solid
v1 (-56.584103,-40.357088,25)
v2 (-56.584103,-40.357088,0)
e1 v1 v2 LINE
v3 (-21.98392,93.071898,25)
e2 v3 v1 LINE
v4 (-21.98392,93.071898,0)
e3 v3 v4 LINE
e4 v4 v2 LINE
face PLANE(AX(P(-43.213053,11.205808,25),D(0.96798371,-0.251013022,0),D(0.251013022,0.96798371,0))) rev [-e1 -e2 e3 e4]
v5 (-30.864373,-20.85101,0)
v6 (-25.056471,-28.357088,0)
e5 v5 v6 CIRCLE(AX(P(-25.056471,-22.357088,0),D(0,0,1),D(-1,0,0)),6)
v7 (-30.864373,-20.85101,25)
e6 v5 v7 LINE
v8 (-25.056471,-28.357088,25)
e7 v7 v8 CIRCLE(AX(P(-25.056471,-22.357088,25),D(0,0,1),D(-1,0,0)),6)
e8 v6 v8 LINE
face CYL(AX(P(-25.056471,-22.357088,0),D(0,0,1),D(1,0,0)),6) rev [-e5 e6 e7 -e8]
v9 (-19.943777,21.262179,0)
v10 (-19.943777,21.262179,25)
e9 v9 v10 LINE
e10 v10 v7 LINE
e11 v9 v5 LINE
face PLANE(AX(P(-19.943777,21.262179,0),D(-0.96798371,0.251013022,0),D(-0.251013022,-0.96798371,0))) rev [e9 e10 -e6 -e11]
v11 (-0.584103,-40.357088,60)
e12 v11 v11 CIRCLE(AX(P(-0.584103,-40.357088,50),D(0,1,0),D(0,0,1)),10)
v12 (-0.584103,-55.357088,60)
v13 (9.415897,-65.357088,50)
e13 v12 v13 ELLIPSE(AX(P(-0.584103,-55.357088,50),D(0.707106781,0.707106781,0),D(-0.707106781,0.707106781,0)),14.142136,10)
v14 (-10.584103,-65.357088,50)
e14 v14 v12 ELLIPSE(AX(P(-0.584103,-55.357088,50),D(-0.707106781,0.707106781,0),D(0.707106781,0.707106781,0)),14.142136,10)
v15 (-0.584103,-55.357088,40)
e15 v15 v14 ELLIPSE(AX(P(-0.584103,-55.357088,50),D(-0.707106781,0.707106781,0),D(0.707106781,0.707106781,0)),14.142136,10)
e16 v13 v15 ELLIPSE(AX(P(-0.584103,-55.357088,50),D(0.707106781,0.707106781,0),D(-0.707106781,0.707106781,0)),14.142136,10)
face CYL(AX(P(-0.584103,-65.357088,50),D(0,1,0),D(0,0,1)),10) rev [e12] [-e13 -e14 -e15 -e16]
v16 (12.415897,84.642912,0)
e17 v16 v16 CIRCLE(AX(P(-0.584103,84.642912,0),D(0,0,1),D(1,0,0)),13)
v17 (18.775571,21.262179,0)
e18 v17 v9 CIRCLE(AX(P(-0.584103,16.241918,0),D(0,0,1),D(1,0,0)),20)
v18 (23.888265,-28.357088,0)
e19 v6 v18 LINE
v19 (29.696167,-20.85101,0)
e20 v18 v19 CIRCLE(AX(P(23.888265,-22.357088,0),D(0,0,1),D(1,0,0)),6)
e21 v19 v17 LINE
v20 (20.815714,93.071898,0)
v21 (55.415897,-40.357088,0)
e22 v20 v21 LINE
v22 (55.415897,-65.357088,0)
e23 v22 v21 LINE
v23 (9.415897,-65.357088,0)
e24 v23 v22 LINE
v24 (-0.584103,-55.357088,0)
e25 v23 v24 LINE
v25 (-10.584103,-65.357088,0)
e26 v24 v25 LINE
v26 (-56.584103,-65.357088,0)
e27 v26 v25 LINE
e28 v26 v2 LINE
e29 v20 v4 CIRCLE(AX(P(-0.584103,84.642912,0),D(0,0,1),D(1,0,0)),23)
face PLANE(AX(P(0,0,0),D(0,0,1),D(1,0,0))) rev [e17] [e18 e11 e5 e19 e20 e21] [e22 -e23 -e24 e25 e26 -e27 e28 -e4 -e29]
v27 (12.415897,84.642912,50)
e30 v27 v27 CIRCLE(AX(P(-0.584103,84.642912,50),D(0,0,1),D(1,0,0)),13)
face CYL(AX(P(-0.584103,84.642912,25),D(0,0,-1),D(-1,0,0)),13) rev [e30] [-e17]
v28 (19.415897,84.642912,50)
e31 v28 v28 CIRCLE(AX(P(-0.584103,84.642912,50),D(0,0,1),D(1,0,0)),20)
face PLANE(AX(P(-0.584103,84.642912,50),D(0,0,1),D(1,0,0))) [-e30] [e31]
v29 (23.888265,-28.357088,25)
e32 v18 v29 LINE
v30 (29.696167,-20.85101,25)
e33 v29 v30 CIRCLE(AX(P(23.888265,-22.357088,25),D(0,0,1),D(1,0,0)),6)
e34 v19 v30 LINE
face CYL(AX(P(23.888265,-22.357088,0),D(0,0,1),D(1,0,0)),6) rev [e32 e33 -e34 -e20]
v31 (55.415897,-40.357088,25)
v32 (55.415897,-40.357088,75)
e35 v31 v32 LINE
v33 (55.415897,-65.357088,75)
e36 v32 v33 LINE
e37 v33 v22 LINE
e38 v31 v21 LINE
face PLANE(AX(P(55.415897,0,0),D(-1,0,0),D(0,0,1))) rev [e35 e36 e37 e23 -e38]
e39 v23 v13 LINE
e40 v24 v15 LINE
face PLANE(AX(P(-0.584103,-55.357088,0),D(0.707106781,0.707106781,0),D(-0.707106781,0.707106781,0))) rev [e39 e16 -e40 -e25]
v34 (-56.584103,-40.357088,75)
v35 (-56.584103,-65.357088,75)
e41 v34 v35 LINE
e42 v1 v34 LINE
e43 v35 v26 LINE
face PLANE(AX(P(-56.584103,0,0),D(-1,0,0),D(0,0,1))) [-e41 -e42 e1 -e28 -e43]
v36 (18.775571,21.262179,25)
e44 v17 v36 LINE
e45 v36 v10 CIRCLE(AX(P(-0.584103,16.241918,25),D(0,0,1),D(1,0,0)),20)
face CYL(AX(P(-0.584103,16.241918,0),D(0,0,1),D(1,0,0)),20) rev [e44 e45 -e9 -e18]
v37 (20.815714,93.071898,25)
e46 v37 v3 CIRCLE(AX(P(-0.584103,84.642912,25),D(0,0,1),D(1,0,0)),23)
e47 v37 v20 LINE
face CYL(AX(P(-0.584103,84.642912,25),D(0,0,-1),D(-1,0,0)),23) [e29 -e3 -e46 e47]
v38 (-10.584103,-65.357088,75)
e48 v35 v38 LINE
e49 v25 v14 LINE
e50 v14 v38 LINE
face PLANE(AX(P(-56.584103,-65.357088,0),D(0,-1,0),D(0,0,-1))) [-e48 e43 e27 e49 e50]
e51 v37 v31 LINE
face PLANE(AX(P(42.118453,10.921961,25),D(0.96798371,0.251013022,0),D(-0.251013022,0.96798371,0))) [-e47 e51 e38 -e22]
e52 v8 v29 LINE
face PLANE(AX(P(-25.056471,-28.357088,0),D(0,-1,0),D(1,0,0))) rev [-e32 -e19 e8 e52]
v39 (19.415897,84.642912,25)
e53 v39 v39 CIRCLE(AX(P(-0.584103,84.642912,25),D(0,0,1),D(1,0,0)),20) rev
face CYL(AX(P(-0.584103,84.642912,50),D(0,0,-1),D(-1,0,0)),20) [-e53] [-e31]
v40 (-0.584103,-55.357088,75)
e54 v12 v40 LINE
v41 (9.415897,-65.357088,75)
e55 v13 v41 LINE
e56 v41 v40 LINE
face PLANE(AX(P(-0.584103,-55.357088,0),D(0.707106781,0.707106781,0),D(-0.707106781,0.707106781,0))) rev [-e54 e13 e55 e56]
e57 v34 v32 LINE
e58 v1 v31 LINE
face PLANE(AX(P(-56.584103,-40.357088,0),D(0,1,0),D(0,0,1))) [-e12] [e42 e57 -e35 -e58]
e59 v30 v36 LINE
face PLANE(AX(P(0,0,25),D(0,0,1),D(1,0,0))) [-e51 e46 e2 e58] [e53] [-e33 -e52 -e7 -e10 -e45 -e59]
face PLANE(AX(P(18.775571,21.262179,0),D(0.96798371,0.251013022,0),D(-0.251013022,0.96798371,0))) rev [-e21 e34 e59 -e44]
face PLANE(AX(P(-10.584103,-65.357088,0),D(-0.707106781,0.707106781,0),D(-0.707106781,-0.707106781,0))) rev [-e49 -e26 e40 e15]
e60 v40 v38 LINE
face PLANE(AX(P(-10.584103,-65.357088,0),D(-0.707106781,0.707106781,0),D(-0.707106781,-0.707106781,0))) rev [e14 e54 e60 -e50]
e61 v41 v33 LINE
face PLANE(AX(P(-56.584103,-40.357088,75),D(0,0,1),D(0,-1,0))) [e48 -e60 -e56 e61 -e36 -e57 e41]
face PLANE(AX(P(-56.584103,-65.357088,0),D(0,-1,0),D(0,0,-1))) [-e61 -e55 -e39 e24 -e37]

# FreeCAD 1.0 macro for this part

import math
import FreeCAD as App
import Part
import Sketcher
Q = App.Units.Quantity

doc = App.newDocument("Part")
body = doc.addObject("PartDesign::Body", "Body")

# Sketch on XY plane
sketch1 = body.newObject("Sketcher::SketchObject", "Sketch")
sketch1.AttachmentSupport = (doc.getObject("XY_Plane"), [""])
sketch1.MapMode = "FlatFace"
sketch1.addGeometry([
    Part.LineSegment(App.Vector(55, -40, 0), App.Vector(21, 93, 0)),  # 0
    Part.ArcOfCircle(Part.Circle(App.Vector(-1, 85, 0), App.Vector(0, 0, 1), 23), math.radians(21), math.radians(159)),  # 1
    Part.LineSegment(App.Vector(-22, 93, 0), App.Vector(-57, -40, 0)),  # 2
    Part.LineSegment(App.Vector(-57, -40, 0), App.Vector(55, -40, 0)),  # 3
    Part.Circle(App.Vector(-1, 85, 0), App.Vector(0, 0, 1), 13),  # 4
], False)
sketch1.addConstraint([
    Sketcher.Constraint("Coincident", 0, 2, 1, 1),
    Sketcher.Constraint("Coincident", 1, 2, 2, 1),
    Sketcher.Constraint("Coincident", 2, 2, 3, 1),
    Sketcher.Constraint("Coincident", 3, 2, 0, 1),
    Sketcher.Constraint("Horizontal", 3),
    Sketcher.Constraint("Coincident", 4, 3, 1, 3),
    Sketcher.Constraint("Horizontal", 0, 2, 1, 2),
    Sketcher.Constraint("Equal", 0, 2),
    Sketcher.Constraint("Diameter", 4, Q("26 mm")),
    Sketcher.Constraint("Radius", 1, Q("23 mm")),
    Sketcher.Constraint("DistanceX", 3, 1, 3, 2, Q("112 mm")),
    Sketcher.Constraint("DistanceY", 2, 2, 1, 3, Q("125 mm")),
    Sketcher.Constraint("DistanceY", -1, 1, 0, 2, Q("93.071898 mm")),
    Sketcher.Constraint("DistanceY", -1, 1, 1, 3, Q("84.642912 mm")),
    Sketcher.Constraint("DistanceX", 1, 2, -1, 1, Q("21.98392 mm")),
])
pad1 = body.newObject("PartDesign::Pad", "Pad")
pad1.Profile = sketch1
pad1.Length = 25

# Sketch on YZ plane
sketch2 = body.newObject("Sketcher::SketchObject", "Sketch001")
sketch2.AttachmentSupport = (doc.getObject("YZ_Plane"), [""])
sketch2.MapMode = "FlatFace"
sketch2.addGeometry([
    Part.LineSegment(App.Vector(-40, 75, 0), App.Vector(-65, 75, 0)),
    Part.LineSegment(App.Vector(-65, 75, 0), App.Vector(-65, 0, 0)),
    Part.LineSegment(App.Vector(-65, 0, 0), App.Vector(-40, 0, 0)),
    Part.LineSegment(App.Vector(-40, 0, 0), App.Vector(-40, 75, 0)),
], False)
sketch2.addConstraint([
    Sketcher.Constraint("Coincident", 0, 2, 1, 1),
    Sketcher.Constraint("Coincident", 1, 2, 2, 1),
    Sketcher.Constraint("Coincident", 2, 2, 3, 1),
    Sketcher.Constraint("Coincident", 3, 2, 0, 1),
    Sketcher.Constraint("Horizontal", 0),
    Sketcher.Constraint("Vertical", 1),
    Sketcher.Constraint("Horizontal", 2),
    Sketcher.Constraint("Vertical", 3),
    Sketcher.Constraint("PointOnObject", 1, 2, -1),
    Sketcher.Constraint("DistanceX", 0, 2, 0, 1, Q("25 mm")),
    Sketcher.Constraint("DistanceY", 1, 2, 1, 1, Q("75 mm")),
    Sketcher.Constraint("DistanceX", 0, 2, -1, 1, Q("65.357088 mm")),
])
pad2 = body.newObject("PartDesign::Pad", "Pad001")
pad2.Profile = sketch2
pad2.Type = "TwoLengths"
pad2.Length = 55.415897
pad2.Length2 = 56.584103

# Sketch on XY plane
sketch3 = body.newObject("Sketcher::SketchObject", "Sketch002")
sketch3.AttachmentSupport = (doc.getObject("XY_Plane"), [""])
sketch3.MapMode = "FlatFace"
sketch3.AttachmentOffset = App.Placement(App.Vector(0, 0, 75), App.Rotation())
sketch3.addGeometry([
    Part.LineSegment(App.Vector(-1, -55, 0), App.Vector(-11, -65, 0)),
    Part.LineSegment(App.Vector(-11, -65, 0), App.Vector(9, -65, 0)),
    Part.LineSegment(App.Vector(9, -65, 0), App.Vector(-1, -55, 0)),
], False)
sketch3.addConstraint([
    Sketcher.Constraint("Coincident", 0, 2, 1, 1),
    Sketcher.Constraint("Coincident", 1, 2, 2, 1),
    Sketcher.Constraint("Coincident", 2, 2, 0, 1),
    Sketcher.Constraint("Horizontal", 1),
    Sketcher.Constraint("Perpendicular", 0, 2),
    Sketcher.Constraint("Equal", 0, 2),
    Sketcher.Constraint("DistanceX", 1, 1, 1, 2, Q("20 mm")),
    Sketcher.Constraint("DistanceY", 0, 2, -1, 1, Q("65.357088 mm")),
    Sketcher.Constraint("DistanceX", 0, 2, -1, 1, Q("10.584103 mm")),
])
pocket1 = body.newObject("PartDesign::Pocket", "Pocket")
pocket1.Profile = sketch3
pocket1.Type = "ThroughAll"

# Sketch on XZ plane
sketch4 = body.newObject("Sketcher::SketchObject", "Sketch003")
sketch4.AttachmentSupport = (doc.getObject("XZ_Plane"), [""])
sketch4.MapMode = "FlatFace"
sketch4.AttachmentOffset = App.Placement(App.Vector(0, 0, 40.357088), App.Rotation())
sketch4.addGeometry(Part.Circle(App.Vector(-1, 50, 0), App.Vector(0, 0, 1), 10), False)
sketch4.addConstraint([
    Sketcher.Constraint("Diameter", 0, Q("20 mm")),
    Sketcher.Constraint("DistanceY", -1, 1, 0, 3, Q("50 mm")),
    Sketcher.Constraint("DistanceX", 0, 3, -1, 1, Q("0.584103 mm")),
])
pocket2 = body.newObject("PartDesign::Pocket", "Pocket001")
pocket2.Profile = sketch4
pocket2.Type = "ThroughAll"
pocket2.Reversed = True

# Sketch on XY plane
sketch5 = body.newObject("Sketcher::SketchObject", "Sketch004")
sketch5.AttachmentSupport = (doc.getObject("XY_Plane"), [""])
sketch5.MapMode = "FlatFace"
sketch5.AttachmentOffset = App.Placement(App.Vector(0, 0, 25), App.Rotation())
sketch5.addGeometry([
    Part.LineSegment(App.Vector(-20, 21, 0), App.Vector(-31, -21, 0)),  # 0
    Part.ArcOfCircle(Part.Circle(App.Vector(-25, -22, 0), App.Vector(0, 0, 1), 6), math.radians(165), math.radians(270)),  # 1
    Part.LineSegment(App.Vector(-25, -28, 0), App.Vector(24, -28, 0)),  # 2
    Part.ArcOfCircle(Part.Circle(App.Vector(24, -22, 0), App.Vector(0, 0, 1), 6), math.radians(-90), math.radians(15)),  # 3
    Part.LineSegment(App.Vector(30, -21, 0), App.Vector(19, 21, 0)),  # 4
    Part.ArcOfCircle(Part.Circle(App.Vector(-1, 16, 0), App.Vector(0, 0, 1), 20), math.radians(15), math.radians(165)),  # 5
], False)
sketch5.addConstraint([
    Sketcher.Constraint("Tangent", 0, 2, 1, 1),
    Sketcher.Constraint("Tangent", 1, 2, 2, 1),
    Sketcher.Constraint("Tangent", 2, 2, 3, 1),
    Sketcher.Constraint("Tangent", 3, 2, 4, 1),
    Sketcher.Constraint("Tangent", 4, 2, 5, 1),
    Sketcher.Constraint("Tangent", 5, 2, 0, 1),
    Sketcher.Constraint("Horizontal", 2),
    Sketcher.Constraint("Equal", 1, 3),
    Sketcher.Constraint("Horizontal", 0, 2, 3, 2),
    Sketcher.Constraint("Radius", 1, Q("6 mm")),
    Sketcher.Constraint("Radius", 5, Q("20 mm")),
    Sketcher.Constraint("DistanceX", 2, 1, 2, 2, Q("48.944736 mm")),
    Sketcher.Constraint("DistanceX", 1, 3, -1, 1, Q("25.056471 mm")),
    Sketcher.Constraint("DistanceY", 1, 3, -1, 1, Q("22.357088 mm")),
    Sketcher.Constraint("DistanceY", -1, 1, 5, 3, Q("16.241918 mm")),
])
pocket3 = body.newObject("PartDesign::Pocket", "Pocket002")
pocket3.Profile = sketch5
pocket3.Type = "ThroughAll"

# Sketch on XY plane
sketch6 = body.newObject("Sketcher::SketchObject", "Sketch005")
sketch6.AttachmentSupport = (doc.getObject("XY_Plane"), [""])
sketch6.MapMode = "FlatFace"
sketch6.addGeometry([
    Part.Circle(App.Vector(-1, 85, 0), App.Vector(0, 0, 1), 20),
    Part.Circle(App.Vector(-1, 85, 0), App.Vector(0, 0, 1), 13),
], False)
sketch6.addConstraint([
    Sketcher.Constraint("Coincident", 1, 3, 0, 3),
    Sketcher.Constraint("Diameter", 0, Q("40 mm")),
    Sketcher.Constraint("Diameter", 1, Q("26 mm")),
    Sketcher.Constraint("DistanceY", -1, 1, 0, 3, Q("84.642912 mm")),
    Sketcher.Constraint("DistanceX", 0, 3, -1, 1, Q("0.584103 mm")),
])
pad3 = body.newObject("PartDesign::Pad", "Pad002")
pad3.Profile = sketch6
pad3.Length = 50

doc.recompute()
